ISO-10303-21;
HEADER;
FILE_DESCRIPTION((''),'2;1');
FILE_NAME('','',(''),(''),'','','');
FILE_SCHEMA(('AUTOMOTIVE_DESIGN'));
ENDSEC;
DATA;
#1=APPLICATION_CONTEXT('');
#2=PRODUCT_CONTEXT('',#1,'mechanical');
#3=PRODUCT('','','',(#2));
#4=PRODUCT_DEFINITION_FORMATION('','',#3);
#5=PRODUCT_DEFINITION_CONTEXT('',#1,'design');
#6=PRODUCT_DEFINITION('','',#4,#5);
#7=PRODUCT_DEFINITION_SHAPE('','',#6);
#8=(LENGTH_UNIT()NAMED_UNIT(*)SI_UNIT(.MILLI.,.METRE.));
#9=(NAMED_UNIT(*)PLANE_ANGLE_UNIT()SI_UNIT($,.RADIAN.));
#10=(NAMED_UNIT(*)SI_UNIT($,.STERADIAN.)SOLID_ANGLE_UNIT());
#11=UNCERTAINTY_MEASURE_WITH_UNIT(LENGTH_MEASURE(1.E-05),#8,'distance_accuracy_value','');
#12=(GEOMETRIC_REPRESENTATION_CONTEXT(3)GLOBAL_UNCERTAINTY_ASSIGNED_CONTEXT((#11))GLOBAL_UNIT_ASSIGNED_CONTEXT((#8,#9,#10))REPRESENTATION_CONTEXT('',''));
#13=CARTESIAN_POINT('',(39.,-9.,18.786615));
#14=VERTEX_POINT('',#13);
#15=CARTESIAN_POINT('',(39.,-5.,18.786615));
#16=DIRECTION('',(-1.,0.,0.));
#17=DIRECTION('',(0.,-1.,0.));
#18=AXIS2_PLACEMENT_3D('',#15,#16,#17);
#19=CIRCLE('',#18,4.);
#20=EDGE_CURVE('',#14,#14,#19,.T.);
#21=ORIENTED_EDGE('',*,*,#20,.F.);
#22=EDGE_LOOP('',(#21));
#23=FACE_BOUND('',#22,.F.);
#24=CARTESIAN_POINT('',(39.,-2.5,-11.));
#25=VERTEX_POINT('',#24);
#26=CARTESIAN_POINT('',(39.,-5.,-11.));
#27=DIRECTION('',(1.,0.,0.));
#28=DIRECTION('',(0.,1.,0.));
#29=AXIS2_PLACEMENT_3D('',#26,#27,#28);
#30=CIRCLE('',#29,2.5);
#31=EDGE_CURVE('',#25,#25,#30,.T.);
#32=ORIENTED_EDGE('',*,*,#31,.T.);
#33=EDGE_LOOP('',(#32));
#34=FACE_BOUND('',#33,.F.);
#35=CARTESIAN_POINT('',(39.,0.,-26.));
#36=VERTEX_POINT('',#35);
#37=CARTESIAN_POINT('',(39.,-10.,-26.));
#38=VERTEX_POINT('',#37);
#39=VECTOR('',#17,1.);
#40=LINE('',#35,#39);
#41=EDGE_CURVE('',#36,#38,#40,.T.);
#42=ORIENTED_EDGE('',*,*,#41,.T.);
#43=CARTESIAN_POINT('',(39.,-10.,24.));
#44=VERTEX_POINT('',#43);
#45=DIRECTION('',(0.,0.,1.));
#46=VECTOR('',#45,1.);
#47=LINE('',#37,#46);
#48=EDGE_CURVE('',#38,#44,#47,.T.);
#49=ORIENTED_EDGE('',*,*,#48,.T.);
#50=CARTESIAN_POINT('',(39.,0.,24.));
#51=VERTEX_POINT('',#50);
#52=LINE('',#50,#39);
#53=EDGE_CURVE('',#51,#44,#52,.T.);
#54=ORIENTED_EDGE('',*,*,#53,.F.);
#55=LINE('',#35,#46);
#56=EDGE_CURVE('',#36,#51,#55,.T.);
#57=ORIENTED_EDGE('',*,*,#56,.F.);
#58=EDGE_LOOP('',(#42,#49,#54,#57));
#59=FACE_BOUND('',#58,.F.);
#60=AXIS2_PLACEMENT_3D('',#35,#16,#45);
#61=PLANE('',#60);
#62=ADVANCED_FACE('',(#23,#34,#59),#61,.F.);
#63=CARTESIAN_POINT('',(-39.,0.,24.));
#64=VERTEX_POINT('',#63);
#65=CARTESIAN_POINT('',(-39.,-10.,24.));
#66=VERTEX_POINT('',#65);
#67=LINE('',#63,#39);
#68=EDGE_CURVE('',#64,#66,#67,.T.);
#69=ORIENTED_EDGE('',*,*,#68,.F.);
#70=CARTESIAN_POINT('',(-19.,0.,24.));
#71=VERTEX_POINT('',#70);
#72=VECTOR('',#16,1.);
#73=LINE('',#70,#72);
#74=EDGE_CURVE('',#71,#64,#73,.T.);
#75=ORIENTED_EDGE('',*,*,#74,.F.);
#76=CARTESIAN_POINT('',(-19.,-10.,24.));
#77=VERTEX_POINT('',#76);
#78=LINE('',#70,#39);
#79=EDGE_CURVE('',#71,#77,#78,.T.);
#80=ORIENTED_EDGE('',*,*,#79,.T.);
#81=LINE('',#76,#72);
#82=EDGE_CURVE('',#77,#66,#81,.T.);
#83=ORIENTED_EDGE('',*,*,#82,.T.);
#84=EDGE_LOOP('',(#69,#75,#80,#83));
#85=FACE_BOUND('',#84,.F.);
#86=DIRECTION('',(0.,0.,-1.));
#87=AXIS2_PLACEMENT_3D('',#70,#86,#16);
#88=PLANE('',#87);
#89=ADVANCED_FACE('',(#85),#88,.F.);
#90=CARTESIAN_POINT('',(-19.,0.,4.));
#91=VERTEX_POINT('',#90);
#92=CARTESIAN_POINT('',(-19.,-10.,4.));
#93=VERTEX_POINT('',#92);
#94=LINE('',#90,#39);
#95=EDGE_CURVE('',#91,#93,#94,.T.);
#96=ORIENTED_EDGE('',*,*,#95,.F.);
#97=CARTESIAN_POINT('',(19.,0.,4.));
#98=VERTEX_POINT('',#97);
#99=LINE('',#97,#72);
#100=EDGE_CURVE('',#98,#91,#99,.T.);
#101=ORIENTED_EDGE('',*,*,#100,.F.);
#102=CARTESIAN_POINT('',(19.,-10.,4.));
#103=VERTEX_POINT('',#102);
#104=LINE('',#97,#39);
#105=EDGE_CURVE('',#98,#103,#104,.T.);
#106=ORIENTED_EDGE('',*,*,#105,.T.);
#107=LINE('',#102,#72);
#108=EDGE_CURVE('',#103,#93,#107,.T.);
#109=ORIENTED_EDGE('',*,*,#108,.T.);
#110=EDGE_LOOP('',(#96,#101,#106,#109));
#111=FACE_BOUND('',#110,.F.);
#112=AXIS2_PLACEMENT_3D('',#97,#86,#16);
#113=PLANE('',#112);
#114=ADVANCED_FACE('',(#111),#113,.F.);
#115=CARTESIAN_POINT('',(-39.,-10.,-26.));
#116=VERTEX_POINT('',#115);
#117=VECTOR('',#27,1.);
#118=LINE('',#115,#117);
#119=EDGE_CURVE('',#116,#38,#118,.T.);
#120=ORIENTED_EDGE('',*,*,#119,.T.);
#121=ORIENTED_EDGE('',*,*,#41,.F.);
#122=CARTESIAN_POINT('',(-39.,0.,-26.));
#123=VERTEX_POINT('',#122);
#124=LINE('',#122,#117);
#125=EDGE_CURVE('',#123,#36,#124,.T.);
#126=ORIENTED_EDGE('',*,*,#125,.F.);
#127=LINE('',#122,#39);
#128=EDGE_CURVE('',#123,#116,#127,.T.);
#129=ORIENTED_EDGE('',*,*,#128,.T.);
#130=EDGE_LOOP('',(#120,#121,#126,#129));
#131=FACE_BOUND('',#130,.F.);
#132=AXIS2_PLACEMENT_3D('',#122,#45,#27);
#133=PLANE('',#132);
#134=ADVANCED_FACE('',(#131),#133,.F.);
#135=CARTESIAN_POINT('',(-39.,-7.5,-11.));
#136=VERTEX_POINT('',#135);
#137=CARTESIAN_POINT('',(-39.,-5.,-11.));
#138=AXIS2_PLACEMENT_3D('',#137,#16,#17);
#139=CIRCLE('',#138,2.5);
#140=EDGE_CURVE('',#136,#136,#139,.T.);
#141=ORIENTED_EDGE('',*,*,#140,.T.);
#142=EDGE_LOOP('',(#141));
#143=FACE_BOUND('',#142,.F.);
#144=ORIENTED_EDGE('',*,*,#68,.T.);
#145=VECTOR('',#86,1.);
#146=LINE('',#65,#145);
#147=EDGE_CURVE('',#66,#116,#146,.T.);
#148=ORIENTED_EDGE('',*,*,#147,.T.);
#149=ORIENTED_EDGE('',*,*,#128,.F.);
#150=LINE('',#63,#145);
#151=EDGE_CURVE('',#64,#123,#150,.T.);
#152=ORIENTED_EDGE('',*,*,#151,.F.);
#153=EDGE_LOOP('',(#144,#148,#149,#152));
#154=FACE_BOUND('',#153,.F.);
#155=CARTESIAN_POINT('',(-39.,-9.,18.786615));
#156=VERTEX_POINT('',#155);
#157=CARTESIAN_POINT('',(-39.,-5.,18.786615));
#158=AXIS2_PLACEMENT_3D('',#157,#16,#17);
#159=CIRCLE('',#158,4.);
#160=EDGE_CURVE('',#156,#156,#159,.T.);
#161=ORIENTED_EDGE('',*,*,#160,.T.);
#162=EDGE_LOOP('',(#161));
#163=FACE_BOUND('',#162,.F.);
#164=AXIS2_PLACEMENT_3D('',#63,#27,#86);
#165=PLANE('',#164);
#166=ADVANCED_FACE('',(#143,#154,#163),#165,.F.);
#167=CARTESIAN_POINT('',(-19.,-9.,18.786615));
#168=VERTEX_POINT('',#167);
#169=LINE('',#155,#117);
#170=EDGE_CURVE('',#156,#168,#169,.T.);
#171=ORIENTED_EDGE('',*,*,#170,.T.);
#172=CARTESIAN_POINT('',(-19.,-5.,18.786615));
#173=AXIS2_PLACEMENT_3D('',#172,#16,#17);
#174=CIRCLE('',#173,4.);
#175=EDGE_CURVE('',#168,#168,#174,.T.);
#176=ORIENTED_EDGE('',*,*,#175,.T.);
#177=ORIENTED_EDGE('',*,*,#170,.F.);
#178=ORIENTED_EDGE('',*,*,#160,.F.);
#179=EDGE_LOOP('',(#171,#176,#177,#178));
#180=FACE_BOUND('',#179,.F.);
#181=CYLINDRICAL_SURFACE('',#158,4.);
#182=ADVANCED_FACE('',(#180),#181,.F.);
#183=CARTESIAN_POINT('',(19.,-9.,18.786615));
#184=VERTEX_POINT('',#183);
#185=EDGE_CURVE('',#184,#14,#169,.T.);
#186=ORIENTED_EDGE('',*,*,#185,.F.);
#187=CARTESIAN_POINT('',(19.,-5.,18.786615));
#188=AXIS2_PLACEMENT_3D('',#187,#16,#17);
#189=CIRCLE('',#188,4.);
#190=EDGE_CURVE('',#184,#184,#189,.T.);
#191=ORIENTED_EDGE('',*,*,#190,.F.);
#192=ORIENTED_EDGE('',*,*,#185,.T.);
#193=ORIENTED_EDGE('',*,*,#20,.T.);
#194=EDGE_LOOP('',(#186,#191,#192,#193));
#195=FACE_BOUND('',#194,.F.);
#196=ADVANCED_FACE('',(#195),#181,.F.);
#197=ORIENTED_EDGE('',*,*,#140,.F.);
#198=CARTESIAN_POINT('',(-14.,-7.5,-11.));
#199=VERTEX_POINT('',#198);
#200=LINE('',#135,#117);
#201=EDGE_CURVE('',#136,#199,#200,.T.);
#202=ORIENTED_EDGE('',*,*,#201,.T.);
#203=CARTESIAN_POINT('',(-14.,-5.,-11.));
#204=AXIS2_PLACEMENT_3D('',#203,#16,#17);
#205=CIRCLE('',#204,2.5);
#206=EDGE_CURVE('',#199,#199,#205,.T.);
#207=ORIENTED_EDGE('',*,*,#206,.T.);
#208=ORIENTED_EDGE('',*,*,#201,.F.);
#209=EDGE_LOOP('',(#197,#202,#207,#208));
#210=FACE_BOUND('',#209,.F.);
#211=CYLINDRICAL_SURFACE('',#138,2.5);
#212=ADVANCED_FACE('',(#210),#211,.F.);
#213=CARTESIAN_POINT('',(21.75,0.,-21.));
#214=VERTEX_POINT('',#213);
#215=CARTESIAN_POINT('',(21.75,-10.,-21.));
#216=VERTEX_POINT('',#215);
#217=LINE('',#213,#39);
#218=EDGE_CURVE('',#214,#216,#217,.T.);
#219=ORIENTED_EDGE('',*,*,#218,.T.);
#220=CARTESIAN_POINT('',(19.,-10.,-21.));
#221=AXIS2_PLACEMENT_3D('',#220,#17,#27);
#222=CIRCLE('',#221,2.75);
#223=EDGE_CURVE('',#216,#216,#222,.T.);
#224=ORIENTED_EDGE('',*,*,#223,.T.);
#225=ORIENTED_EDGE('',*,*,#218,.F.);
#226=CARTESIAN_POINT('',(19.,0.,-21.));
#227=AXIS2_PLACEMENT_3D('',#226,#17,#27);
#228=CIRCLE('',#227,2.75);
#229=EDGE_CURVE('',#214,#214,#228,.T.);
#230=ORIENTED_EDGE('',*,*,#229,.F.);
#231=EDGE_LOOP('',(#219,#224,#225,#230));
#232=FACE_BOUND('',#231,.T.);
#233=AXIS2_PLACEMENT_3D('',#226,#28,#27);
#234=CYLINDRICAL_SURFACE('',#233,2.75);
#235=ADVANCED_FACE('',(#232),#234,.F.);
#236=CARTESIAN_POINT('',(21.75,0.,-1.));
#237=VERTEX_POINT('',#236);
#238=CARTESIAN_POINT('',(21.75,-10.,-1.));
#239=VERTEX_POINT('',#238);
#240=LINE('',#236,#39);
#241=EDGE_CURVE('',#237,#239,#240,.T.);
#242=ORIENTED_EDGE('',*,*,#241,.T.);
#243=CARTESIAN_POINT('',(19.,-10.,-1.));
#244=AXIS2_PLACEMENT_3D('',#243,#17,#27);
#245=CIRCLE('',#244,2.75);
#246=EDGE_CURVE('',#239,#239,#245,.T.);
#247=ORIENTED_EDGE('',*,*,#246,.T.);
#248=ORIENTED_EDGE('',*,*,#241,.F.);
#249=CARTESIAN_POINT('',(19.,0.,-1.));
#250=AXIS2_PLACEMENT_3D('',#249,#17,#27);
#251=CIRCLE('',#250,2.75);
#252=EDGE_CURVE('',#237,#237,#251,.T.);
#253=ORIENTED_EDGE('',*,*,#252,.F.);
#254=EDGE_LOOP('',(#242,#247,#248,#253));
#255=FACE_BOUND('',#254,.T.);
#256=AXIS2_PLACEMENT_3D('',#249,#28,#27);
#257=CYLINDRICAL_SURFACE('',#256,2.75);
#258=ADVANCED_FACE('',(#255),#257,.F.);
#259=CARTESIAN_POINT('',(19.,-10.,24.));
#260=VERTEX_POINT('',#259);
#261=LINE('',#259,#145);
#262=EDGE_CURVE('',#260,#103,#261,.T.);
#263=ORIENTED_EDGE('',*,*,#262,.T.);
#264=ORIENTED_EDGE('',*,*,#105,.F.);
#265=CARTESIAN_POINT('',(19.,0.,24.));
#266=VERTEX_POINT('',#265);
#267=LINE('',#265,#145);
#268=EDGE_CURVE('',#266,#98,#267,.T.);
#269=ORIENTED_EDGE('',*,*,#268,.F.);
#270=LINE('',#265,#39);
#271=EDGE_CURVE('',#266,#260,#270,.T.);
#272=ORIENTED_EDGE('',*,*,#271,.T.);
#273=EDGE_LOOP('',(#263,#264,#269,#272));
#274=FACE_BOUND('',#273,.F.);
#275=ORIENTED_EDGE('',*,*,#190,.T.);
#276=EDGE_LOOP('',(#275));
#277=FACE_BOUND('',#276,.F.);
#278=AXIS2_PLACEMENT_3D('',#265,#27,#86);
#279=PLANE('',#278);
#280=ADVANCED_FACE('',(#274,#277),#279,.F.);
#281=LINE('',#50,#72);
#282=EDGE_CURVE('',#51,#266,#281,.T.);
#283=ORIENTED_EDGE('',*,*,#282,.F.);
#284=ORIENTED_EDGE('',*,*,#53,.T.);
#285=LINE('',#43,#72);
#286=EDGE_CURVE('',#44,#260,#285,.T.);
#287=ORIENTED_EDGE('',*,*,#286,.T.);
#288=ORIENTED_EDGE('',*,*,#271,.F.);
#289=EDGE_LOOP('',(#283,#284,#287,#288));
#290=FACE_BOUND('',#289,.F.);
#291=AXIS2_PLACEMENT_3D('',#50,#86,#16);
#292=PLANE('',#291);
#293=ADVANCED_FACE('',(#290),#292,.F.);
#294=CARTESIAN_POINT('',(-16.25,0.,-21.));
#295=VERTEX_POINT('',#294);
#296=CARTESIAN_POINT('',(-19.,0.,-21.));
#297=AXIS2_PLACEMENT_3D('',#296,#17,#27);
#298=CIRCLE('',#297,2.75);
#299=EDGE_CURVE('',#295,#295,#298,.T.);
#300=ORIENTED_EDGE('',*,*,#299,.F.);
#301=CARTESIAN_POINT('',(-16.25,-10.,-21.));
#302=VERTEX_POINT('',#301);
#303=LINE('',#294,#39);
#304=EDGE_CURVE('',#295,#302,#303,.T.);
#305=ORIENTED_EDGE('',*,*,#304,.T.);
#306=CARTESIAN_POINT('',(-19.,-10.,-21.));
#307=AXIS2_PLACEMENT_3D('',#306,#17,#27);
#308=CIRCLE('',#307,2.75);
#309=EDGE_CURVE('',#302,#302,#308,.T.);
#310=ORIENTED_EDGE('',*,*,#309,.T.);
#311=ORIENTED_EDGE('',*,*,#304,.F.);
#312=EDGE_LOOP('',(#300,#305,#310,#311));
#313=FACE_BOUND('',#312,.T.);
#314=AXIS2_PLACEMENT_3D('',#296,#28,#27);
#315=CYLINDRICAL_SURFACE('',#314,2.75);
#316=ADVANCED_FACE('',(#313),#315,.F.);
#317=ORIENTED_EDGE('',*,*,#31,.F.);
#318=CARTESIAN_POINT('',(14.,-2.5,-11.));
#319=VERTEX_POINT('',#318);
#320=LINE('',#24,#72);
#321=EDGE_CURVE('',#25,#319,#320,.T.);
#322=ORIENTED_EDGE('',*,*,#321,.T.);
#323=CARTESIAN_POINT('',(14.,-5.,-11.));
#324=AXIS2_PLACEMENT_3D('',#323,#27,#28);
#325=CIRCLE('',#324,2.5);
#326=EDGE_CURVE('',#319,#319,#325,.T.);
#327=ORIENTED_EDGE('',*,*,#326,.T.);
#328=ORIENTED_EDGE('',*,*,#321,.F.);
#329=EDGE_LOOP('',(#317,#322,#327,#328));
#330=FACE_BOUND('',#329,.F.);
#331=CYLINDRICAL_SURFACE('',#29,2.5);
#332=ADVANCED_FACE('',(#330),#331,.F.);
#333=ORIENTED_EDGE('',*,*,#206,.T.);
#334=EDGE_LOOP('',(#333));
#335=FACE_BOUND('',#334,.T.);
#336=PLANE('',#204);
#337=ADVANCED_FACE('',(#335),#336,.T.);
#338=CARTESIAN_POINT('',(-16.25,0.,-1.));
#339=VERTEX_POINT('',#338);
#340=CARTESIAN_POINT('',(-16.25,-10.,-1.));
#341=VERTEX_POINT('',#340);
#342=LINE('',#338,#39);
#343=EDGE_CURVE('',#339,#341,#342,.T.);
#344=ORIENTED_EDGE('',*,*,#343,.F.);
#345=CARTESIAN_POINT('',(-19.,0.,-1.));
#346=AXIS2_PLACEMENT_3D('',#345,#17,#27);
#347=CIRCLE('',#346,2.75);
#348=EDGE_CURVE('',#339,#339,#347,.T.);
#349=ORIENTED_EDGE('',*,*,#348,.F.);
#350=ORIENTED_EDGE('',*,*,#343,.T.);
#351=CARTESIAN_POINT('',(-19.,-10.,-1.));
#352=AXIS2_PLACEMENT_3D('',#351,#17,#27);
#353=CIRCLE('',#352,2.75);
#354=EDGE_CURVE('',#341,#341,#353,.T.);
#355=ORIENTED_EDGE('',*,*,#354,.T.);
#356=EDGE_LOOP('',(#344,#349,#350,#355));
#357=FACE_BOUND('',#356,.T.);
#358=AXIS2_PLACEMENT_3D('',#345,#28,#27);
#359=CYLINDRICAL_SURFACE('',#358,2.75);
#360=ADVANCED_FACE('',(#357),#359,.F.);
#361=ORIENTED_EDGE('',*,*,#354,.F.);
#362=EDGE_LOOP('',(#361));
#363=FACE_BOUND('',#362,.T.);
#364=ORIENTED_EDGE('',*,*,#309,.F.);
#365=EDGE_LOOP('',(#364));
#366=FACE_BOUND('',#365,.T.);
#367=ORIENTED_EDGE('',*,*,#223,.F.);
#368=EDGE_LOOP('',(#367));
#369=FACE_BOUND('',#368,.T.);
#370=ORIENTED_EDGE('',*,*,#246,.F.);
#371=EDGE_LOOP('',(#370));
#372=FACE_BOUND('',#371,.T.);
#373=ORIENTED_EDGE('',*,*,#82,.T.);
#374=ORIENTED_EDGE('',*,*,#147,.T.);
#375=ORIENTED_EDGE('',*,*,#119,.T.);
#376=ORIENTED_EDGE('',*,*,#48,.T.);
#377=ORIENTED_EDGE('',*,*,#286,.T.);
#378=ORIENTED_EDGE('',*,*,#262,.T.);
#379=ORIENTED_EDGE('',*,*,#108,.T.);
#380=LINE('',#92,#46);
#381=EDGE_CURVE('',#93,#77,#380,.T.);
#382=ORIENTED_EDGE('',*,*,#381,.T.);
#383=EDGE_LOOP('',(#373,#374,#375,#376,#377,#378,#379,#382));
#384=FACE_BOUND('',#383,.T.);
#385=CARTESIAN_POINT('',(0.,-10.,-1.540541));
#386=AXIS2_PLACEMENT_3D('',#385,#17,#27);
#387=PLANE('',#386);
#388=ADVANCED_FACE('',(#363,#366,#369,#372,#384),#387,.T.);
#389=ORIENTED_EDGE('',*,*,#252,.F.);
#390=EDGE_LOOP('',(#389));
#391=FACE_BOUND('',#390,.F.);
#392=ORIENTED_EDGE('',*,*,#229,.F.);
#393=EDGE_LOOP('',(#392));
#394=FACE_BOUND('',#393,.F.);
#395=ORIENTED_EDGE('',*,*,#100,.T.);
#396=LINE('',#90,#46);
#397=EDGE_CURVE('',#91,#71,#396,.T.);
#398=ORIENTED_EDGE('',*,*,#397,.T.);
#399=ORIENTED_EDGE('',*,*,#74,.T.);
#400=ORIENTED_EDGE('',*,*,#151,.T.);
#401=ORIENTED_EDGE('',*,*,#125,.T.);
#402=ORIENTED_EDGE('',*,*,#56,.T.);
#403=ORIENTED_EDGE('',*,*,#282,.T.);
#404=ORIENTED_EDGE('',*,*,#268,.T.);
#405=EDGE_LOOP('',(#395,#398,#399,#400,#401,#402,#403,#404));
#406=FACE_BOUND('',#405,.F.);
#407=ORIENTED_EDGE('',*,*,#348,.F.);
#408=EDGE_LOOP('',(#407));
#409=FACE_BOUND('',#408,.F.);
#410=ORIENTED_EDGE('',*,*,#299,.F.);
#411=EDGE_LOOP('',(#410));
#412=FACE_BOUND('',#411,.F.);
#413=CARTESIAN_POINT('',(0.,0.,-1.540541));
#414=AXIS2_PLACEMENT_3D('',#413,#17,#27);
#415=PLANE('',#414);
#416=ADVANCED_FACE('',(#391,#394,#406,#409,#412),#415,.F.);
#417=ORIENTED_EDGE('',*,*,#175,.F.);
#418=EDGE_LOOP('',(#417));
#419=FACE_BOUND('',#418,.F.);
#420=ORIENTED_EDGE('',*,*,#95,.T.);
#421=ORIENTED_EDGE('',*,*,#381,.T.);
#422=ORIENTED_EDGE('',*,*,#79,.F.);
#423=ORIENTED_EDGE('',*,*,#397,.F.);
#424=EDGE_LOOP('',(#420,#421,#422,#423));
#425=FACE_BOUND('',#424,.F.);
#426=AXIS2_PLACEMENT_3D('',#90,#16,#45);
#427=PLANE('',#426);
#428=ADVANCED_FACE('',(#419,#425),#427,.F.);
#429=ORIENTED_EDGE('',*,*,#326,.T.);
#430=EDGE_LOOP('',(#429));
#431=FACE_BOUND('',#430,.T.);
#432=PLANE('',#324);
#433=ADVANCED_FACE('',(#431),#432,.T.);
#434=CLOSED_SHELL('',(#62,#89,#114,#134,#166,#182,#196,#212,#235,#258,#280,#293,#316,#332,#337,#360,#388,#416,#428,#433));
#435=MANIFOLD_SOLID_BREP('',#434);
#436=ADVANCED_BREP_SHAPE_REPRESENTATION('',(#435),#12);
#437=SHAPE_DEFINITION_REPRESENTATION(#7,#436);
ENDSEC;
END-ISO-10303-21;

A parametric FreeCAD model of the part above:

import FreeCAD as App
import Part
import Sketcher

doc = App.newDocument("Part")
params = doc.addObject("Spreadsheet::Sheet", "Params")
for row, (alias, value) in enumerate([
    ("sketch1_diameter", "5.5 mm"),
    ("sketch1_width", "20 mm"),
    ("sketch1_width2", "78 mm"),
    ("sketch1_height", "50 mm"),
    ("pad1_length", "10 mm"),
    ("sketch2_diameter", "8 mm"),
    ("pocket1_length", "99 mm"),
    ("sketch3_diameter", "5 mm"),
    ("pocket2_length", "25 mm"),
    ("sketch4_diameter", "5 mm"),
    ("pocket3_length", "25 mm"),
], start=1):
    params.set(f"A{row}", alias)
    params.set(f"B{row}", "=" + value)
    params.setAlias(f"B{row}", alias)

body = doc.addObject("PartDesign::Body", "Body")

# Sketch on XZ plane
sketch1 = body.newObject("Sketcher::SketchObject", "Sketch")
sketch1.AttachmentSupport = (doc.getObject("XZ_Plane"), [""])
sketch1.MapMode = "FlatFace"
sketch1.addGeometry(Part.LineSegment(App.Vector(-19, 24, 0), App.Vector(-39, 24, 0)), False)
sketch1.addGeometry(Part.LineSegment(App.Vector(-39, 24, 0), App.Vector(-39, -26, 0)), False)
sketch1.addGeometry(Part.LineSegment(App.Vector(-39, -26, 0), App.Vector(39, -26, 0)), False)
sketch1.addGeometry(Part.LineSegment(App.Vector(39, -26, 0), App.Vector(39, 24, 0)), False)
sketch1.addGeometry(Part.LineSegment(App.Vector(39, 24, 0), App.Vector(19, 24, 0)), False)
sketch1.addGeometry(Part.LineSegment(App.Vector(19, 24, 0), App.Vector(19, 4, 0)), False)
sketch1.addGeometry(Part.LineSegment(App.Vector(19, 4, 0), App.Vector(-19, 4, 0)), False)
sketch1.addGeometry(Part.LineSegment(App.Vector(-19, 4, 0), App.Vector(-19, 24, 0)), False)
sketch1.addGeometry(Part.Circle(App.Vector(-19, -21, 0), App.Vector(0, 0, 1), 2.75), False)
sketch1.addGeometry(Part.Circle(App.Vector(19, -21, 0), App.Vector(0, 0, 1), 2.75), False)
sketch1.addGeometry(Part.Circle(App.Vector(-19, -1, 0), App.Vector(0, 0, 1), 2.75), False)
sketch1.addGeometry(Part.Circle(App.Vector(19, -1, 0), App.Vector(0, 0, 1), 2.75), False)
sketch1.addConstraint(Sketcher.Constraint("Coincident", 0, 2, 1, 1))
sketch1.addConstraint(Sketcher.Constraint("Coincident", 1, 2, 2, 1))
sketch1.addConstraint(Sketcher.Constraint("Coincident", 2, 2, 3, 1))
sketch1.addConstraint(Sketcher.Constraint("Coincident", 3, 2, 4, 1))
sketch1.addConstraint(Sketcher.Constraint("Coincident", 4, 2, 5, 1))
sketch1.addConstraint(Sketcher.Constraint("Coincident", 5, 2, 6, 1))
sketch1.addConstraint(Sketcher.Constraint("Coincident", 6, 2, 7, 1))
sketch1.addConstraint(Sketcher.Constraint("Coincident", 7, 2, 0, 1))
sketch1.addConstraint(Sketcher.Constraint("Horizontal", 0))
sketch1.addConstraint(Sketcher.Constraint("Vertical", 1))
sketch1.addConstraint(Sketcher.Constraint("Horizontal", 2))
sketch1.addConstraint(Sketcher.Constraint("Vertical", 3))
sketch1.addConstraint(Sketcher.Constraint("Horizontal", 4))
sketch1.addConstraint(Sketcher.Constraint("Vertical", 5))
sketch1.addConstraint(Sketcher.Constraint("Horizontal", 6))
sketch1.addConstraint(Sketcher.Constraint("Vertical", 7))
sketch1.addConstraint(Sketcher.Constraint("Equal", 8, 9))
sketch1.addConstraint(Sketcher.Constraint("Equal", 9, 10))
sketch1.addConstraint(Sketcher.Constraint("Equal", 10, 11))
sketch1.addConstraint(Sketcher.Constraint("Symmetric", 8, 3, 9, 3, -2))
sketch1.addConstraint(Sketcher.Constraint("Symmetric", 10, 3, 11, 3, -2))
sketch1.addConstraint(Sketcher.Constraint("Symmetric", 0, 2, 3, 2, -2))
sketch1.addConstraint(Sketcher.Constraint("Vertical", 8, 3, 10, 3))
sketch1.addConstraint(Sketcher.Constraint("Vertical", 11, 3, 4, 2))
sketch1.addConstraint(Sketcher.Constraint("Vertical", 10, 3, 6, 2))
sketch1.addConstraint(Sketcher.Constraint("Equal", 4, 5))
sketch1.addConstraint(Sketcher.Constraint("Diameter", 8, 5.5))
sketch1.addConstraint(Sketcher.Constraint("DistanceX", 0, 2, 0, 1, 20.0))
sketch1.addConstraint(Sketcher.Constraint("DistanceX", 2, 1, 2, 2, 78.0))
sketch1.addConstraint(Sketcher.Constraint("DistanceY", 1, 2, 1, 1, 50.0))
sketch1.addConstraint(Sketcher.Constraint("DistanceY", 8, 3, -1, 1, 21.0))
sketch1.addConstraint(Sketcher.Constraint("DistanceY", 10, 3, -1, 1, 1.0))
sketch1.addConstraint(Sketcher.Constraint("DistanceY", -1, 1, 0, 2, 24.0))
sketch1.setExpression("Constraints[26]", "Params.sketch1_diameter")
sketch1.setExpression("Constraints[27]", "Params.sketch1_width")
sketch1.setExpression("Constraints[28]", "Params.sketch1_width2")
sketch1.setExpression("Constraints[29]", "Params.sketch1_height")
pad1 = body.newObject("PartDesign::Pad", "Pad")
pad1.Profile = sketch1
pad1.setExpression("Length", "Params.pad1_length")

# Sketch on YZ plane
sketch2 = body.newObject("Sketcher::SketchObject", "Sketch001")
sketch2.AttachmentSupport = (doc.getObject("YZ_Plane"), [""])
sketch2.MapMode = "FlatFace"
sketch2.AttachmentOffset = App.Placement(App.Vector(0, 0, -39), App.Rotation())
sketch2.addGeometry(Part.Circle(App.Vector(-5, 18.786615, 0), App.Vector(0, 0, 1), 4), False)
sketch2.addConstraint(Sketcher.Constraint("Diameter", 0, 8.0))
sketch2.addConstraint(Sketcher.Constraint("DistanceX", 0, 3, -1, 1, 5.0))
sketch2.addConstraint(Sketcher.Constraint("DistanceY", -1, 1, 0, 3, 18.786615))
sketch2.setExpression("Constraints[0]", "Params.sketch2_diameter")
pocket1 = body.newObject("PartDesign::Pocket", "Pocket")
pocket1.Profile = sketch2
pocket1.setExpression("Length", "Params.pocket1_length")
pocket1.Reversed = True

# Sketch on YZ plane
sketch3 = body.newObject("Sketcher::SketchObject", "Sketch002")
sketch3.AttachmentSupport = (doc.getObject("YZ_Plane"), [""])
sketch3.MapMode = "FlatFace"
sketch3.AttachmentOffset = App.Placement(App.Vector(0, 0, -39), App.Rotation())
sketch3.addGeometry(Part.Circle(App.Vector(-5, -11, 0), App.Vector(0, 0, 1), 2.5), False)
sketch3.addConstraint(Sketcher.Constraint("Diameter", 0, 5.0))
sketch3.addConstraint(Sketcher.Constraint("DistanceX", 0, 3, -1, 1, 5.0))
sketch3.addConstraint(Sketcher.Constraint("DistanceY", 0, 3, -1, 1, 11.0))
sketch3.setExpression("Constraints[0]", "Params.sketch3_diameter")
pocket2 = body.newObject("PartDesign::Pocket", "Pocket001")
pocket2.Profile = sketch3
pocket2.setExpression("Length", "Params.pocket2_length")
pocket2.Reversed = True

# Sketch on YZ plane
sketch4 = body.newObject("Sketcher::SketchObject", "Sketch003")
sketch4.AttachmentSupport = (doc.getObject("YZ_Plane"), [""])
sketch4.MapMode = "FlatFace"
sketch4.AttachmentOffset = App.Placement(App.Vector(0, 0, 39), App.Rotation())
sketch4.addGeometry(Part.Circle(App.Vector(-5, -11, 0), App.Vector(0, 0, 1), 2.5), False)
sketch4.addConstraint(Sketcher.Constraint("Diameter", 0, 5.0))
sketch4.addConstraint(Sketcher.Constraint("DistanceX", 0, 3, -1, 1, 5.0))
sketch4.addConstraint(Sketcher.Constraint("DistanceY", 0, 3, -1, 1, 11.0))
sketch4.setExpression("Constraints[0]", "Params.sketch4_diameter")
pocket3 = body.newObject("PartDesign::Pocket", "Pocket002")
pocket3.Profile = sketch4
pocket3.setExpression("Length", "Params.pocket3_length")

doc.recompute()
